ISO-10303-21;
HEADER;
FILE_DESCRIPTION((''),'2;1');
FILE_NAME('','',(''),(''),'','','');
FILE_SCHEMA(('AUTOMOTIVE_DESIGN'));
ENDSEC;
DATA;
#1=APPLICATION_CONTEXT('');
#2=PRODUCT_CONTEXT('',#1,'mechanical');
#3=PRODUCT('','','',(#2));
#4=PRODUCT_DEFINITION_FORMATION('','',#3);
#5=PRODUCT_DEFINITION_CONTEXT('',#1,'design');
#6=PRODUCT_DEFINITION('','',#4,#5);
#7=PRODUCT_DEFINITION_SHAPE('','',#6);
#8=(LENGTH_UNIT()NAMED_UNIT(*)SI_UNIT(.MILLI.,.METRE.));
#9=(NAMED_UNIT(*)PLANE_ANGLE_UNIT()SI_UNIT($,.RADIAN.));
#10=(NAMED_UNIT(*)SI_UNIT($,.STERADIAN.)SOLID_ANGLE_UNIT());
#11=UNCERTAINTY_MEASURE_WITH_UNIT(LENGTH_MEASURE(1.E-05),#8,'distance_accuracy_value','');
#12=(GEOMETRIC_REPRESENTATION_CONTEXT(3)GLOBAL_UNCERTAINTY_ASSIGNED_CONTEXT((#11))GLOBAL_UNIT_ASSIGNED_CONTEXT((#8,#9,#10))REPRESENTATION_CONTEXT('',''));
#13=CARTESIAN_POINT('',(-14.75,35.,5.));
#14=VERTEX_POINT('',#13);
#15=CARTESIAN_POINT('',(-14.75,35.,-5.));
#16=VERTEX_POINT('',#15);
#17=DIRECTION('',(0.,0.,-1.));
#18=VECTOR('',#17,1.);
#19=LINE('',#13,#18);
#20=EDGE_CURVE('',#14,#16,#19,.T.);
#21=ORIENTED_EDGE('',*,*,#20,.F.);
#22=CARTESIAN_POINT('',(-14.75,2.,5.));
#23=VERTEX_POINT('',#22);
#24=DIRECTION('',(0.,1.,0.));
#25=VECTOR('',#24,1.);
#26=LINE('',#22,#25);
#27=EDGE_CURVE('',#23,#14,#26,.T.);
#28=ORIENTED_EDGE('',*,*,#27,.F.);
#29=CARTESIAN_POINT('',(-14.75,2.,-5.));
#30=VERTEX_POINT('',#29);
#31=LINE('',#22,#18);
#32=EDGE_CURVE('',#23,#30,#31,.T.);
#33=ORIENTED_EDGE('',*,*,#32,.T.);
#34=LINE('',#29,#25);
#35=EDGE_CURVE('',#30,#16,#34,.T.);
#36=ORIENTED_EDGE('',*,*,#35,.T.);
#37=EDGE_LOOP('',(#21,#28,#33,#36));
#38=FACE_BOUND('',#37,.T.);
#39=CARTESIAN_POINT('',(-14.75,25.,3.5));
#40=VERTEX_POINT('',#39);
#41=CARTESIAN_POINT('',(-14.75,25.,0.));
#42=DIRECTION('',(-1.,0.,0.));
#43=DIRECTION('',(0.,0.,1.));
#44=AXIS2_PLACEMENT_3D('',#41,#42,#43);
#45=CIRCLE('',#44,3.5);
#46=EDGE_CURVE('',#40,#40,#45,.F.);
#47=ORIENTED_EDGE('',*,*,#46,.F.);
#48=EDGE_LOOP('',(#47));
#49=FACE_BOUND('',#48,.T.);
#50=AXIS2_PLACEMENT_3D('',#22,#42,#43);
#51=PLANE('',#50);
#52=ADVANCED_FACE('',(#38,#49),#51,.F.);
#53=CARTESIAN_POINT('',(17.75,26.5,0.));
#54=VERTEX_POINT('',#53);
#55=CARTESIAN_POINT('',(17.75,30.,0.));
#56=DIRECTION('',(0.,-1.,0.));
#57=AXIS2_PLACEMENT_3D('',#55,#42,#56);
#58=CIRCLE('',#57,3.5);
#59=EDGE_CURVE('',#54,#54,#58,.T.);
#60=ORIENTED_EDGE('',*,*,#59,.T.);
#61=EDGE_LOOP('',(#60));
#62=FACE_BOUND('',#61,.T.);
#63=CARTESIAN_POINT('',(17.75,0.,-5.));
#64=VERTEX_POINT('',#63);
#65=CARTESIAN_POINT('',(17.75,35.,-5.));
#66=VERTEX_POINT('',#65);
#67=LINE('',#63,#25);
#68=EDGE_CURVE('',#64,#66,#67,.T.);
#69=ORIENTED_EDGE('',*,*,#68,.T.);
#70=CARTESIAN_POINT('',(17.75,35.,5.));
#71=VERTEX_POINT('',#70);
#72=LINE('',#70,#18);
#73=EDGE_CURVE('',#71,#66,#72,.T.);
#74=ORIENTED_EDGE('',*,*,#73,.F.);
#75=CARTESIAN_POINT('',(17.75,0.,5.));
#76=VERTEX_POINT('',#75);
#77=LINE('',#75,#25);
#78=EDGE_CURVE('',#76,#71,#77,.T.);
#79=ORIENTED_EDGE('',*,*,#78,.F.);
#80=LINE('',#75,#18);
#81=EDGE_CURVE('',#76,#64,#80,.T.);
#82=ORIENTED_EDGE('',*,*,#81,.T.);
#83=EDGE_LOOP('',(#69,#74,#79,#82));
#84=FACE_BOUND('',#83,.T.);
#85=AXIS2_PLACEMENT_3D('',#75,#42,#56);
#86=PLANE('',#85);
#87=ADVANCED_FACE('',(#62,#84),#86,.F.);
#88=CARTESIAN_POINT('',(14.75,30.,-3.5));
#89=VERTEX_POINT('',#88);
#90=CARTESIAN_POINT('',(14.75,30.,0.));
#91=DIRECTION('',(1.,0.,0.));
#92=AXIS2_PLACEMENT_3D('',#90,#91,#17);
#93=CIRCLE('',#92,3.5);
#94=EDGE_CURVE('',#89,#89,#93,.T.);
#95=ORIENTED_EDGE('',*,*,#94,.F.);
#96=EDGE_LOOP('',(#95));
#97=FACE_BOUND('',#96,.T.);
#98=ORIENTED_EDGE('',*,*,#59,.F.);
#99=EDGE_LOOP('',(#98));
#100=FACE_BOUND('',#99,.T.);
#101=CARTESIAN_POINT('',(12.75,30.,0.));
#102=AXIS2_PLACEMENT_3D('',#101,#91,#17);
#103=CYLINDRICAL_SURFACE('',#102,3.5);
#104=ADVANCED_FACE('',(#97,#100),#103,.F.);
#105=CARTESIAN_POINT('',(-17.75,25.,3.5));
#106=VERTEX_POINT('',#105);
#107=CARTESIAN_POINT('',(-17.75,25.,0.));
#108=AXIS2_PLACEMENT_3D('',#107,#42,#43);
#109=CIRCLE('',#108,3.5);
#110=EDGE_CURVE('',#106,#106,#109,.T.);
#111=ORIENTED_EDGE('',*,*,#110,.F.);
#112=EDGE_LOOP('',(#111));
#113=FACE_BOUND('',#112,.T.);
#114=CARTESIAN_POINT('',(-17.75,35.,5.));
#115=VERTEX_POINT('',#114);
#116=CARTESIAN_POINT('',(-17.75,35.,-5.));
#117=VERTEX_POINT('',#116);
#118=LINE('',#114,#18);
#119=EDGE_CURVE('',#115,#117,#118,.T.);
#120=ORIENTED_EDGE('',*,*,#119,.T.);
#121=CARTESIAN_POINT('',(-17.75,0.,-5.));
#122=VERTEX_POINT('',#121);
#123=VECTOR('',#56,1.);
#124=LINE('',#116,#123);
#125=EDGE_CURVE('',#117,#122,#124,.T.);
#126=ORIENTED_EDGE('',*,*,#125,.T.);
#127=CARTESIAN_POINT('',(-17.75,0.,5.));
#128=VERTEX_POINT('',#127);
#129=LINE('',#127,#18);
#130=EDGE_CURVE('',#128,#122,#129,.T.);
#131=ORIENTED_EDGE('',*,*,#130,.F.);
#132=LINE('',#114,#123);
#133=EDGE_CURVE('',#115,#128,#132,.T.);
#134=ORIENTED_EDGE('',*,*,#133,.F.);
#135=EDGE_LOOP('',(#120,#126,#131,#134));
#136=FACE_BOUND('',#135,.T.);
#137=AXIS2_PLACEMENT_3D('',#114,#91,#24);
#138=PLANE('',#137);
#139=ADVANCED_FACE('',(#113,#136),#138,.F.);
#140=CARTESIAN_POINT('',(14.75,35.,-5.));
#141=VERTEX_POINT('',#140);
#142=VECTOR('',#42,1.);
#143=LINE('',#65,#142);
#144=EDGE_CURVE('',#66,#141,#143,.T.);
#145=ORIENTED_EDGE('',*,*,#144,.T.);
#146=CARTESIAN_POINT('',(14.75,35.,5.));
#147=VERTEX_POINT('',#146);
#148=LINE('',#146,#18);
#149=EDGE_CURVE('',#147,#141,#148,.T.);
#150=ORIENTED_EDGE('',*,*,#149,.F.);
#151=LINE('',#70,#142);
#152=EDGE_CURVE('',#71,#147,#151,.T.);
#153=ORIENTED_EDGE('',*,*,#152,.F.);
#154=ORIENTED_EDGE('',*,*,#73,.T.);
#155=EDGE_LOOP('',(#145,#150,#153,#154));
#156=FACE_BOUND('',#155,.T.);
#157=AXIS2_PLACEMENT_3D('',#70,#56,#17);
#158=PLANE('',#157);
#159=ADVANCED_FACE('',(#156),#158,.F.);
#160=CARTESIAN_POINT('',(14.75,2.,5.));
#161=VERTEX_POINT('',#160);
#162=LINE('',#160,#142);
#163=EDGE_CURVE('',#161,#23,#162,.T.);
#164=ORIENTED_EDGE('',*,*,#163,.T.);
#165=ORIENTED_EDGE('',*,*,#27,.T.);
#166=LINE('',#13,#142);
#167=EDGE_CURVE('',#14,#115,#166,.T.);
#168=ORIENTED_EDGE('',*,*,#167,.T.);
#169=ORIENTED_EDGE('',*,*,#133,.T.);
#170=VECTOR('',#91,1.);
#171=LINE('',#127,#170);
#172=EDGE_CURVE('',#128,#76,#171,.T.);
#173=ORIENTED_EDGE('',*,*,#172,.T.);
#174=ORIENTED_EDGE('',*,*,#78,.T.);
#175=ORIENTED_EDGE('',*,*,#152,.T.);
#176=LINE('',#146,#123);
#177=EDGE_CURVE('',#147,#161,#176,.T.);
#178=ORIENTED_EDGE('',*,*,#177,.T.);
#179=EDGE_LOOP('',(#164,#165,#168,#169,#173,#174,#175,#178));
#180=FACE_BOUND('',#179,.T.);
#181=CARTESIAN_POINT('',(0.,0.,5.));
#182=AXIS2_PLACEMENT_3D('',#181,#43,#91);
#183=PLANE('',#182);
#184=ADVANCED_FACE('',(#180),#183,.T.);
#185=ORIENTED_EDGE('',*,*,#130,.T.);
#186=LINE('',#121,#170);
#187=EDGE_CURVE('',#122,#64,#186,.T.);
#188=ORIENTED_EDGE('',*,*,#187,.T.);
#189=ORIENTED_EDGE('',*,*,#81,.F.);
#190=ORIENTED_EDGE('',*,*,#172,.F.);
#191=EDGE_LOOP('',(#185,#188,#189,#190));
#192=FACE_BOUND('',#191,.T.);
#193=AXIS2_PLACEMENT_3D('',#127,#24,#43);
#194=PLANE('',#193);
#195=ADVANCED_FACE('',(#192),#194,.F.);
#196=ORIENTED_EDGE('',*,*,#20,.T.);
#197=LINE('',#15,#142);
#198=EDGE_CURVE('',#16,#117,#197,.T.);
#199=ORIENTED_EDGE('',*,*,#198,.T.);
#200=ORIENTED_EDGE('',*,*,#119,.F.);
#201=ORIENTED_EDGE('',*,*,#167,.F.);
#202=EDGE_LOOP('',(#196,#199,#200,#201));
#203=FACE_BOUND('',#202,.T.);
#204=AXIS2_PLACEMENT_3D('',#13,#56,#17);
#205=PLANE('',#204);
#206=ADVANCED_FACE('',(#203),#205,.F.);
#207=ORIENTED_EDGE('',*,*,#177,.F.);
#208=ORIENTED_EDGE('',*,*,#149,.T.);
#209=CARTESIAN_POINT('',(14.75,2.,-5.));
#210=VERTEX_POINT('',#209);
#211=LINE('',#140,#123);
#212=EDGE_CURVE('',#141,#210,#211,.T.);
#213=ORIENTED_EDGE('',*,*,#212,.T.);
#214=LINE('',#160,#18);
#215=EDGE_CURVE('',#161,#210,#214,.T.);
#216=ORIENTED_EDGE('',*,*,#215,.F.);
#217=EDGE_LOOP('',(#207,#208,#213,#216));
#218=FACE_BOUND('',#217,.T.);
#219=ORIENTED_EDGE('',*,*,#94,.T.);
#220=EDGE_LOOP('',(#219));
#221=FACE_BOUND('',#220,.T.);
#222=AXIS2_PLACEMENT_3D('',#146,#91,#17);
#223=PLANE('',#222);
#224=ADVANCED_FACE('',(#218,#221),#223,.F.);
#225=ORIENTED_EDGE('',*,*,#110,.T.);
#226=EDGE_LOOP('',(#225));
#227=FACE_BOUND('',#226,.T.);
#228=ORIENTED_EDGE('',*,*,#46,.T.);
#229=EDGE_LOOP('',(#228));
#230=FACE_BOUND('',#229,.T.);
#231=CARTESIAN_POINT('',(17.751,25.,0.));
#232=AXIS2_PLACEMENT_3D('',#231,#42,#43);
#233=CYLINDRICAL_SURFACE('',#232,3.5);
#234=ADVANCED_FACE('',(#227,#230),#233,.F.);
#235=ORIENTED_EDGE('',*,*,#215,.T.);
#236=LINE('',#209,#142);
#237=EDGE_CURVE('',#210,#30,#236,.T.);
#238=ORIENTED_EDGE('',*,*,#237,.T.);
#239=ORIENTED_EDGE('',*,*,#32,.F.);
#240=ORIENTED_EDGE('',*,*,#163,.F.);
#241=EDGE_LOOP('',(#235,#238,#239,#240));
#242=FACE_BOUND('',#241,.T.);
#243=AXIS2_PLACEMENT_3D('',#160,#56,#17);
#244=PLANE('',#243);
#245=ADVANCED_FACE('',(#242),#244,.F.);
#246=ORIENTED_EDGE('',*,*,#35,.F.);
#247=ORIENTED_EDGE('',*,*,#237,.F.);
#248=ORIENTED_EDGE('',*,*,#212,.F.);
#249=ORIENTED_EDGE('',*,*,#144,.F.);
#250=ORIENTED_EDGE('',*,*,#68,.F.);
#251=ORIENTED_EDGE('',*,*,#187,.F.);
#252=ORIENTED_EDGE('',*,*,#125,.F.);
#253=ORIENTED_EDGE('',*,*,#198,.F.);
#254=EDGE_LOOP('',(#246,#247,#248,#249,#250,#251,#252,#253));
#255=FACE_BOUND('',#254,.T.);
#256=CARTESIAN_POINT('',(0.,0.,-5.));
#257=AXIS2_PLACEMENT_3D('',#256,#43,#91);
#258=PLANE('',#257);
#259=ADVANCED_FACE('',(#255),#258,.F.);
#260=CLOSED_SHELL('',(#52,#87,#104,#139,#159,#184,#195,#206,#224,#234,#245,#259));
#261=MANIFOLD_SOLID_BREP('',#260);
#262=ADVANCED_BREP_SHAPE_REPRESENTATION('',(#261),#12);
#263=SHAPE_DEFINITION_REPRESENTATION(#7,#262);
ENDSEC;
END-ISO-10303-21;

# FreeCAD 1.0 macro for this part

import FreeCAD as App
import Part
import Sketcher
Q = App.Units.Quantity

doc = App.newDocument("Part")
params = doc.addObject("Spreadsheet::Sheet", "Params")
for row, (alias, value) in enumerate([
    ("sketch1_width", "3 mm"),
    ("sketch1_height", "33 mm"),
    ("sketch1_height2", "35 mm"),
    ("sketch1_width2", "29.5 mm"),
    ("pad1_length", "10 mm"),
    ("sketch2_diameter", "7 mm"),
    ("pocket1_length", "10 mm"),
    ("sketch3_diameter", "7 mm"),
], start=1):
    params.set(f"A{row}", alias)
    params.set(f"B{row}", "=" + value)
    params.setAlias(f"B{row}", alias)

body = doc.addObject("PartDesign::Body", "Body")

sketch1 = body.newObject("Sketcher::SketchObject", "Sketch")
sketch1.AttachmentSupport = (doc.getObject("XY_Plane"), [""])
sketch1.MapMode = "FlatFace"
sketch1.addGeometry([
    Part.LineSegment(App.Vector(14.75, 2, 0), App.Vector(-14.75, 2, 0)),
    Part.LineSegment(App.Vector(-14.75, 2, 0), App.Vector(-14.75, 35, 0)),
    Part.LineSegment(App.Vector(-14.75, 35, 0), App.Vector(-17.75, 35, 0)),
    Part.LineSegment(App.Vector(-17.75, 35, 0), App.Vector(-17.75, 0, 0)),
    Part.LineSegment(App.Vector(-17.75, 0, 0), App.Vector(17.75, 0, 0)),
    Part.LineSegment(App.Vector(17.75, 0, 0), App.Vector(17.75, 35, 0)),
    Part.LineSegment(App.Vector(17.75, 35, 0), App.Vector(14.75, 35, 0)),
    Part.LineSegment(App.Vector(14.75, 35, 0), App.Vector(14.75, 2, 0)),
], False)
sketch1.addConstraint([
    Sketcher.Constraint("Coincident", 0, 2, 1, 1),
    Sketcher.Constraint("Coincident", 1, 2, 2, 1),
    Sketcher.Constraint("Coincident", 2, 2, 3, 1),
    Sketcher.Constraint("Coincident", 3, 2, 4, 1),
    Sketcher.Constraint("Coincident", 4, 2, 5, 1),
    Sketcher.Constraint("Coincident", 5, 2, 6, 1),
    Sketcher.Constraint("Coincident", 6, 2, 7, 1),
    Sketcher.Constraint("Coincident", 7, 2, 0, 1),
    Sketcher.Constraint("Horizontal", 0),
    Sketcher.Constraint("Vertical", 1),
    Sketcher.Constraint("Horizontal", 2),
    Sketcher.Constraint("Vertical", 3),
    Sketcher.Constraint("Horizontal", 4),
    Sketcher.Constraint("Vertical", 5),
    Sketcher.Constraint("Horizontal", 6),
    Sketcher.Constraint("Vertical", 7),
    Sketcher.Constraint("Symmetric", 3, 2, 4, 2, -1, 1),
    Sketcher.Constraint("Symmetric", 1, 2, 6, 2, -2),
    Sketcher.Constraint("DistanceX", 2, 2, 2, 1, Q("3 mm")),
    Sketcher.Constraint("DistanceY", 1, 1, 1, 2, Q("33 mm")),
    Sketcher.Constraint("DistanceY", 3, 2, 3, 1, Q("35 mm")),
    Sketcher.Constraint("DistanceX", 0, 2, 0, 1, Q("29.5 mm")),
])
sketch1.setExpression("Constraints[18]", "Params.sketch1_width")
sketch1.setExpression("Constraints[19]", "Params.sketch1_height")
sketch1.setExpression("Constraints[20]", "Params.sketch1_height2")
sketch1.setExpression("Constraints[21]", "Params.sketch1_width2")
pad1 = body.newObject("PartDesign::Pad", "Pad")
pad1.Profile = sketch1
pad1.setExpression("Length", "Params.pad1_length")
pad1.Midplane = True

sketch2 = body.newObject("Sketcher::SketchObject", "Sketch001")
sketch2.AttachmentSupport = (doc.getObject("YZ_Plane"), [""])
sketch2.MapMode = "FlatFace"
sketch2.AttachmentOffset = App.Placement(App.Vector(0, 0, 17.75), App.Rotation())
sketch2.addGeometry(Part.Circle(App.Vector(30, 0, 0), App.Vector(0, 0, 1), 3.5), False)
sketch2.addConstraint([
    Sketcher.Constraint("PointOnObject", 0, 3, -1),
    Sketcher.Constraint("Diameter", 0, Q("7 mm")),
    Sketcher.Constraint("DistanceX", -1, 1, 0, 3, Q("30 mm")),
])
sketch2.setExpression("Constraints[1]", "Params.sketch2_diameter")
pocket1 = body.newObject("PartDesign::Pocket", "Pocket")
pocket1.Profile = sketch2
pocket1.setExpression("Length", "Params.pocket1_length")
pocket1.Midplane = True

sketch3 = body.newObject("Sketcher::SketchObject", "Sketch002")
sketch3.AttachmentSupport = (doc.getObject("YZ_Plane"), [""])
sketch3.MapMode = "FlatFace"
sketch3.AttachmentOffset = App.Placement(App.Vector(0, 0, -17.75), App.Rotation())
sketch3.addGeometry(Part.Circle(App.Vector(25, 0, 0), App.Vector(0, 0, 1), 3.5), False)
sketch3.addConstraint([
    Sketcher.Constraint("PointOnObject", 0, 3, -1),
    Sketcher.Constraint("Diameter", 0, Q("7 mm")),
    Sketcher.Constraint("DistanceX", -1, 1, 0, 3, Q("25 mm")),
])
sketch3.setExpression("Constraints[1]", "Params.sketch3_diameter")
pocket2 = body.newObject("PartDesign::Pocket", "Pocket001")
pocket2.Profile = sketch3
pocket2.Type = "UpToFirst"
pocket2.Reversed = True

doc.recompute()
